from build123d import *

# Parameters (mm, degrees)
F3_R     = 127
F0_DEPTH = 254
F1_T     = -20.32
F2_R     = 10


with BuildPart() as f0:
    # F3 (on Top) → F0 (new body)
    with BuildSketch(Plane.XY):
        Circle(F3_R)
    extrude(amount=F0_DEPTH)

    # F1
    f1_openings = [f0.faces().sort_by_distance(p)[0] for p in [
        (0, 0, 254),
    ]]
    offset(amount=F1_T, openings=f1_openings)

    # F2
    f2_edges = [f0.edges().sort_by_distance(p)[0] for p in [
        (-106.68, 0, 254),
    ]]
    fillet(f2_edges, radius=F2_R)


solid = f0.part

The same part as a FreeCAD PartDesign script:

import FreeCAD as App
import Part
import Sketcher

V = App.Vector
Q = App.Units.Quantity


def edges_at(feature, points):
    """Names of the edges that pass closest to the given points."""
    edges = feature.Shape.Edges
    near = lambda p: min(range(len(edges)), key=lambda i: edges[i].distToShape(Part.Vertex(*p))[0])
    return sorted({f"Edge{near(p) + 1}" for p in points})


def faces_at(feature, points):
    """Names of the faces that lie closest to the given points."""
    faces = feature.Shape.Faces
    near = lambda p: min(range(len(faces)), key=lambda i: faces[i].distToShape(Part.Vertex(*p))[0])
    return sorted({f"Face{near(p) + 1}" for p in points})

doc = App.newDocument("Part")
params = doc.addObject("Spreadsheet::Sheet", "Params")
for row, (alias, value) in enumerate([
    ("sketch1_diameter", "10 in"),
    ("pad1_length", "10 in"),
    ("thickness_wall", "0.8 in"),
    ("fillet_radius", "10 mm"),
], start=1):
    params.set(f"A{row}", alias)
    params.set(f"B{row}", "=" + value)
    params.setAlias(f"B{row}", alias)

body = doc.addObject("PartDesign::Body", "Body")

sketch1 = body.newObject("Sketcher::SketchObject", "Sketch")
sketch1.AttachmentSupport = (doc.getObject("XY_Plane"), [""])
sketch1.MapMode = "FlatFace"
sketch1.addGeometry(Part.Circle(V(0, 0, 0), V(0, 0, 1), 127), False)
sketch1.addConstraint([
    Sketcher.Constraint("Coincident", 0, 3, -1, 1),
    Sketcher.Constraint("Diameter", 0, Q("10 in")),
])
sketch1.setExpression("Constraints[1]", "Params.sketch1_diameter")
pad1 = body.newObject("PartDesign::Pad", "Pad")
pad1.Profile = sketch1
pad1.setExpression("Length", "Params.pad1_length")
doc.recompute()

thickness = body.newObject("PartDesign::Thickness", "Thickness")
thickness.Base = (pad1, faces_at(pad1, [(0, 0, 254)]))
thickness.setExpression("Value", "Params.thickness_wall")
thickness.Reversed = True
thickness.Join = "Arc"
doc.recompute()

fillet = body.newObject("PartDesign::Fillet", "Fillet")
fillet.Base = (thickness, edges_at(thickness, [(-106.68, 0, 254)]))
fillet.setExpression("Radius", "Params.fillet_radius")

doc.recompute()
